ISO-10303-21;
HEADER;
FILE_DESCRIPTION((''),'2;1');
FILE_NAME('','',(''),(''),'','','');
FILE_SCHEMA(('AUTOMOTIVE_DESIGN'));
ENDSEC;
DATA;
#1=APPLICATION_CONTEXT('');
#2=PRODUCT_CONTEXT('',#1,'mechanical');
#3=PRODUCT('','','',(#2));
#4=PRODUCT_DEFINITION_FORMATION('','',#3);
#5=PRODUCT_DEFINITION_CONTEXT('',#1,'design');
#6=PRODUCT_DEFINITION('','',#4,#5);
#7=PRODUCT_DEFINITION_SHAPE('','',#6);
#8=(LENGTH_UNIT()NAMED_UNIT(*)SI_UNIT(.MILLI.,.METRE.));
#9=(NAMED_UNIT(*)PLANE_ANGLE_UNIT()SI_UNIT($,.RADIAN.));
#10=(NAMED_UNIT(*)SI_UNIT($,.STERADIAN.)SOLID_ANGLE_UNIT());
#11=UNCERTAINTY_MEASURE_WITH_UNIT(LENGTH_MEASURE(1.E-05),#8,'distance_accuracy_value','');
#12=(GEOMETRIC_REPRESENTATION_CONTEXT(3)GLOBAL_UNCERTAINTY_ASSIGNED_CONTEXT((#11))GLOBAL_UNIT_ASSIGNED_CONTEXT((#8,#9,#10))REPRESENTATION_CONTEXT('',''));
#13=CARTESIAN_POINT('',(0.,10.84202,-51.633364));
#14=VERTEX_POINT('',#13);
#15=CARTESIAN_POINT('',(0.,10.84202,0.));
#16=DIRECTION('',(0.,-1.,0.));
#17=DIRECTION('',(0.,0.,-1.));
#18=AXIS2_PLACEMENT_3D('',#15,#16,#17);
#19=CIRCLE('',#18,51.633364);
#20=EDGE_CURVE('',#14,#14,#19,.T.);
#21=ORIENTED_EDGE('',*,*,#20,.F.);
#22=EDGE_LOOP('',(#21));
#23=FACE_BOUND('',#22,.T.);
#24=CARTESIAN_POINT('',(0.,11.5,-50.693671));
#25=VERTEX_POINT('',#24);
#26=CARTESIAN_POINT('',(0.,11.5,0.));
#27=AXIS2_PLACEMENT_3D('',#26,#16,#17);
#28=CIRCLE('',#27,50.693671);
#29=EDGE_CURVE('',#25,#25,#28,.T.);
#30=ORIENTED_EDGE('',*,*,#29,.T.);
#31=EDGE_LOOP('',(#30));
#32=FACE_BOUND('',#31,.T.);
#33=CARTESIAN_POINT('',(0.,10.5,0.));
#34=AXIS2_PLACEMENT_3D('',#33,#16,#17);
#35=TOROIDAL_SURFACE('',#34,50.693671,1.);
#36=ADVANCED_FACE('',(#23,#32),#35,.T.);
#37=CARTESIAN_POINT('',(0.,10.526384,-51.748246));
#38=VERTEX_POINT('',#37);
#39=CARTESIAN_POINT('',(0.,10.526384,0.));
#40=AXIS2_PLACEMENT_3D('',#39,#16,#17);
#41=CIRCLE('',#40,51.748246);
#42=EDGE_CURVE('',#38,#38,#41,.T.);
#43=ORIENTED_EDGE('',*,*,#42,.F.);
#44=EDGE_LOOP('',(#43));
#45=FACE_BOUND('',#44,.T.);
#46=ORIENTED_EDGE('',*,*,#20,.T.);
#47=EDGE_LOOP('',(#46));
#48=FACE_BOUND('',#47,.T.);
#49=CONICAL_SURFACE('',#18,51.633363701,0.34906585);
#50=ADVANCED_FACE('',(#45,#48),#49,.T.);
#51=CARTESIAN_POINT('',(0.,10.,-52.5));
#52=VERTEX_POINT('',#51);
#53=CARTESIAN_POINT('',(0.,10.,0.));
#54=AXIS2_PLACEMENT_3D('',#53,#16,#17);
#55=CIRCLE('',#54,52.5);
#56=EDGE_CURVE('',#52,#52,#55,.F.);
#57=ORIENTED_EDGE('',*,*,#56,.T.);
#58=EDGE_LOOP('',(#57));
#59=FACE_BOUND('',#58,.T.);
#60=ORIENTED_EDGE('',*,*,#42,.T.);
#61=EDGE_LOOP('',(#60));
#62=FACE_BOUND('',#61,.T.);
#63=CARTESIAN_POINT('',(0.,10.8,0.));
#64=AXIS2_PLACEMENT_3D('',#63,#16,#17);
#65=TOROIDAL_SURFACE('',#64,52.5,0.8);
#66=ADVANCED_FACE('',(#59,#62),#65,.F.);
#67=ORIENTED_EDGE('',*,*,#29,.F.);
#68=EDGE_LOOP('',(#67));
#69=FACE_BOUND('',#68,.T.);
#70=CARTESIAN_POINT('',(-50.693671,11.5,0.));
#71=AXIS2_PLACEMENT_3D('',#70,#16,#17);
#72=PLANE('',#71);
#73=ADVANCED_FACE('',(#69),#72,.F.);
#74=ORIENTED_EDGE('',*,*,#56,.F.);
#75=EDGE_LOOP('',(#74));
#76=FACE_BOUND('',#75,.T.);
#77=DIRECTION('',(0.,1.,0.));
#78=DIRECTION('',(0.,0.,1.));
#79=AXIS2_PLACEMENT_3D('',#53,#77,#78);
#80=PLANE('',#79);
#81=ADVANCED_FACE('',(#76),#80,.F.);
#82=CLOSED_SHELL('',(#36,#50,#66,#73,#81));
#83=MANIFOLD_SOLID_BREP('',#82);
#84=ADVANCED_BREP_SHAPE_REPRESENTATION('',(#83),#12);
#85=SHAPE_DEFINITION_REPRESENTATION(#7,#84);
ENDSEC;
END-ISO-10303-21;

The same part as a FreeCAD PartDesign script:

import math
import FreeCAD as App
import Part
import Sketcher

V = App.Vector
Q = App.Units.Quantity

doc = App.newDocument("Part")
body = doc.addObject("PartDesign::Body", "Body")

# Sketch on XZ plane
sketch1 = body.newObject("Sketcher::SketchObject", "Sketch")
sketch1.AttachmentSupport = (doc.getObject("XZ_Plane"), [""])
sketch1.MapMode = "FlatFace"
sketch1.addGeometry(Part.Circle(V(0, 0, 0), V(0, 0, 1), 75), False)
sketch1.addConstraint([
    Sketcher.Constraint("Coincident", 0, 3, -1, 1),
    Sketcher.Constraint("Diameter", 0, Q("150 mm")),
])
pad1 = body.newObject("PartDesign::Pad", "Pad")
pad1.Profile = sketch1
pad1.Length = 10
pad1.Reversed = True

# Sketch on XY plane
sketch2 = body.newObject("Sketcher::SketchObject", "Sketch001")
sketch2.AttachmentSupport = (doc.getObject("XY_Plane"), [""])
sketch2.MapMode = "FlatFace"
sketch2.addGeometry([
    Part.LineSegment(V(-51.63, 10.84, 0), V(-51.75, 10.53, 0)),  # 0
    Part.ArcOfCircle(Part.Circle(V(-52.5, 10.8, 0), V(0, 0, 1), 0.8), math.radians(-90), math.radians(-20)),  # 1
    Part.LineSegment(V(-52.5, 10, 0), V(0, 10, 0)),  # 2
    Part.LineSegment(V(0, 10, 0), V(0, 11.5, 0)),  # 3
    Part.LineSegment(V(0, 11.5, 0), V(-50.69, 11.5, 0)),  # 4
    Part.ArcOfCircle(Part.Circle(V(-50.69, 10.5, 0), V(0, 0, 1), 1), math.radians(90), math.radians(160)),  # 5
], False)
sketch2.addConstraint([
    Sketcher.Constraint("Tangent", 0, 2, 1, 2),
    Sketcher.Constraint("Tangent", 1, 1, 2, 1),
    Sketcher.Constraint("Coincident", 2, 2, 3, 1),
    Sketcher.Constraint("Coincident", 3, 2, 4, 1),
    Sketcher.Constraint("Tangent", 4, 2, 5, 1),
    Sketcher.Constraint("Tangent", 5, 2, 0, 1),
    Sketcher.Constraint("Horizontal", 2),
    Sketcher.Constraint("Vertical", 3),
    Sketcher.Constraint("Horizontal", 4),
    Sketcher.Constraint("PointOnObject", 2, 2, -2),
    Sketcher.Constraint("Radius", 5, Q("1 mm")),
    Sketcher.Constraint("Radius", 1, Q("0.8 mm")),
    Sketcher.Constraint("Angle", 0, Q("-110 deg")),
    Sketcher.Constraint("DistanceX", 2, 1, 2, 2, Q("52.5 mm")),
    Sketcher.Constraint("DistanceY", 3, 1, 3, 2, Q("1.5 mm")),
    Sketcher.Constraint("DistanceY", -1, 1, 1, 1, Q("10 mm")),
])
revolution = body.newObject("PartDesign::Revolution", "Revolution")
revolution.Profile = sketch2
revolution.ReferenceAxis = (sketch2, ["V_Axis"])
revolution.Angle = 360

# Sketch on XZ plane
sketch3 = body.newObject("Sketcher::SketchObject", "Sketch002")
sketch3.AttachmentSupport = (doc.getObject("XZ_Plane"), [""])
sketch3.MapMode = "FlatFace"
sketch3.addGeometry(Part.Circle(V(0, 0, 0), V(0, 0, 1), 75), False)
sketch3.addConstraint([
    Sketcher.Constraint("Coincident", 0, 3, -1, 1),
    Sketcher.Constraint("Diameter", 0, Q("150 mm")),
])
pocket1 = body.newObject("PartDesign::Pocket", "Pocket")
pocket1.Profile = sketch3
pocket1.Length = 10

doc.recompute()
